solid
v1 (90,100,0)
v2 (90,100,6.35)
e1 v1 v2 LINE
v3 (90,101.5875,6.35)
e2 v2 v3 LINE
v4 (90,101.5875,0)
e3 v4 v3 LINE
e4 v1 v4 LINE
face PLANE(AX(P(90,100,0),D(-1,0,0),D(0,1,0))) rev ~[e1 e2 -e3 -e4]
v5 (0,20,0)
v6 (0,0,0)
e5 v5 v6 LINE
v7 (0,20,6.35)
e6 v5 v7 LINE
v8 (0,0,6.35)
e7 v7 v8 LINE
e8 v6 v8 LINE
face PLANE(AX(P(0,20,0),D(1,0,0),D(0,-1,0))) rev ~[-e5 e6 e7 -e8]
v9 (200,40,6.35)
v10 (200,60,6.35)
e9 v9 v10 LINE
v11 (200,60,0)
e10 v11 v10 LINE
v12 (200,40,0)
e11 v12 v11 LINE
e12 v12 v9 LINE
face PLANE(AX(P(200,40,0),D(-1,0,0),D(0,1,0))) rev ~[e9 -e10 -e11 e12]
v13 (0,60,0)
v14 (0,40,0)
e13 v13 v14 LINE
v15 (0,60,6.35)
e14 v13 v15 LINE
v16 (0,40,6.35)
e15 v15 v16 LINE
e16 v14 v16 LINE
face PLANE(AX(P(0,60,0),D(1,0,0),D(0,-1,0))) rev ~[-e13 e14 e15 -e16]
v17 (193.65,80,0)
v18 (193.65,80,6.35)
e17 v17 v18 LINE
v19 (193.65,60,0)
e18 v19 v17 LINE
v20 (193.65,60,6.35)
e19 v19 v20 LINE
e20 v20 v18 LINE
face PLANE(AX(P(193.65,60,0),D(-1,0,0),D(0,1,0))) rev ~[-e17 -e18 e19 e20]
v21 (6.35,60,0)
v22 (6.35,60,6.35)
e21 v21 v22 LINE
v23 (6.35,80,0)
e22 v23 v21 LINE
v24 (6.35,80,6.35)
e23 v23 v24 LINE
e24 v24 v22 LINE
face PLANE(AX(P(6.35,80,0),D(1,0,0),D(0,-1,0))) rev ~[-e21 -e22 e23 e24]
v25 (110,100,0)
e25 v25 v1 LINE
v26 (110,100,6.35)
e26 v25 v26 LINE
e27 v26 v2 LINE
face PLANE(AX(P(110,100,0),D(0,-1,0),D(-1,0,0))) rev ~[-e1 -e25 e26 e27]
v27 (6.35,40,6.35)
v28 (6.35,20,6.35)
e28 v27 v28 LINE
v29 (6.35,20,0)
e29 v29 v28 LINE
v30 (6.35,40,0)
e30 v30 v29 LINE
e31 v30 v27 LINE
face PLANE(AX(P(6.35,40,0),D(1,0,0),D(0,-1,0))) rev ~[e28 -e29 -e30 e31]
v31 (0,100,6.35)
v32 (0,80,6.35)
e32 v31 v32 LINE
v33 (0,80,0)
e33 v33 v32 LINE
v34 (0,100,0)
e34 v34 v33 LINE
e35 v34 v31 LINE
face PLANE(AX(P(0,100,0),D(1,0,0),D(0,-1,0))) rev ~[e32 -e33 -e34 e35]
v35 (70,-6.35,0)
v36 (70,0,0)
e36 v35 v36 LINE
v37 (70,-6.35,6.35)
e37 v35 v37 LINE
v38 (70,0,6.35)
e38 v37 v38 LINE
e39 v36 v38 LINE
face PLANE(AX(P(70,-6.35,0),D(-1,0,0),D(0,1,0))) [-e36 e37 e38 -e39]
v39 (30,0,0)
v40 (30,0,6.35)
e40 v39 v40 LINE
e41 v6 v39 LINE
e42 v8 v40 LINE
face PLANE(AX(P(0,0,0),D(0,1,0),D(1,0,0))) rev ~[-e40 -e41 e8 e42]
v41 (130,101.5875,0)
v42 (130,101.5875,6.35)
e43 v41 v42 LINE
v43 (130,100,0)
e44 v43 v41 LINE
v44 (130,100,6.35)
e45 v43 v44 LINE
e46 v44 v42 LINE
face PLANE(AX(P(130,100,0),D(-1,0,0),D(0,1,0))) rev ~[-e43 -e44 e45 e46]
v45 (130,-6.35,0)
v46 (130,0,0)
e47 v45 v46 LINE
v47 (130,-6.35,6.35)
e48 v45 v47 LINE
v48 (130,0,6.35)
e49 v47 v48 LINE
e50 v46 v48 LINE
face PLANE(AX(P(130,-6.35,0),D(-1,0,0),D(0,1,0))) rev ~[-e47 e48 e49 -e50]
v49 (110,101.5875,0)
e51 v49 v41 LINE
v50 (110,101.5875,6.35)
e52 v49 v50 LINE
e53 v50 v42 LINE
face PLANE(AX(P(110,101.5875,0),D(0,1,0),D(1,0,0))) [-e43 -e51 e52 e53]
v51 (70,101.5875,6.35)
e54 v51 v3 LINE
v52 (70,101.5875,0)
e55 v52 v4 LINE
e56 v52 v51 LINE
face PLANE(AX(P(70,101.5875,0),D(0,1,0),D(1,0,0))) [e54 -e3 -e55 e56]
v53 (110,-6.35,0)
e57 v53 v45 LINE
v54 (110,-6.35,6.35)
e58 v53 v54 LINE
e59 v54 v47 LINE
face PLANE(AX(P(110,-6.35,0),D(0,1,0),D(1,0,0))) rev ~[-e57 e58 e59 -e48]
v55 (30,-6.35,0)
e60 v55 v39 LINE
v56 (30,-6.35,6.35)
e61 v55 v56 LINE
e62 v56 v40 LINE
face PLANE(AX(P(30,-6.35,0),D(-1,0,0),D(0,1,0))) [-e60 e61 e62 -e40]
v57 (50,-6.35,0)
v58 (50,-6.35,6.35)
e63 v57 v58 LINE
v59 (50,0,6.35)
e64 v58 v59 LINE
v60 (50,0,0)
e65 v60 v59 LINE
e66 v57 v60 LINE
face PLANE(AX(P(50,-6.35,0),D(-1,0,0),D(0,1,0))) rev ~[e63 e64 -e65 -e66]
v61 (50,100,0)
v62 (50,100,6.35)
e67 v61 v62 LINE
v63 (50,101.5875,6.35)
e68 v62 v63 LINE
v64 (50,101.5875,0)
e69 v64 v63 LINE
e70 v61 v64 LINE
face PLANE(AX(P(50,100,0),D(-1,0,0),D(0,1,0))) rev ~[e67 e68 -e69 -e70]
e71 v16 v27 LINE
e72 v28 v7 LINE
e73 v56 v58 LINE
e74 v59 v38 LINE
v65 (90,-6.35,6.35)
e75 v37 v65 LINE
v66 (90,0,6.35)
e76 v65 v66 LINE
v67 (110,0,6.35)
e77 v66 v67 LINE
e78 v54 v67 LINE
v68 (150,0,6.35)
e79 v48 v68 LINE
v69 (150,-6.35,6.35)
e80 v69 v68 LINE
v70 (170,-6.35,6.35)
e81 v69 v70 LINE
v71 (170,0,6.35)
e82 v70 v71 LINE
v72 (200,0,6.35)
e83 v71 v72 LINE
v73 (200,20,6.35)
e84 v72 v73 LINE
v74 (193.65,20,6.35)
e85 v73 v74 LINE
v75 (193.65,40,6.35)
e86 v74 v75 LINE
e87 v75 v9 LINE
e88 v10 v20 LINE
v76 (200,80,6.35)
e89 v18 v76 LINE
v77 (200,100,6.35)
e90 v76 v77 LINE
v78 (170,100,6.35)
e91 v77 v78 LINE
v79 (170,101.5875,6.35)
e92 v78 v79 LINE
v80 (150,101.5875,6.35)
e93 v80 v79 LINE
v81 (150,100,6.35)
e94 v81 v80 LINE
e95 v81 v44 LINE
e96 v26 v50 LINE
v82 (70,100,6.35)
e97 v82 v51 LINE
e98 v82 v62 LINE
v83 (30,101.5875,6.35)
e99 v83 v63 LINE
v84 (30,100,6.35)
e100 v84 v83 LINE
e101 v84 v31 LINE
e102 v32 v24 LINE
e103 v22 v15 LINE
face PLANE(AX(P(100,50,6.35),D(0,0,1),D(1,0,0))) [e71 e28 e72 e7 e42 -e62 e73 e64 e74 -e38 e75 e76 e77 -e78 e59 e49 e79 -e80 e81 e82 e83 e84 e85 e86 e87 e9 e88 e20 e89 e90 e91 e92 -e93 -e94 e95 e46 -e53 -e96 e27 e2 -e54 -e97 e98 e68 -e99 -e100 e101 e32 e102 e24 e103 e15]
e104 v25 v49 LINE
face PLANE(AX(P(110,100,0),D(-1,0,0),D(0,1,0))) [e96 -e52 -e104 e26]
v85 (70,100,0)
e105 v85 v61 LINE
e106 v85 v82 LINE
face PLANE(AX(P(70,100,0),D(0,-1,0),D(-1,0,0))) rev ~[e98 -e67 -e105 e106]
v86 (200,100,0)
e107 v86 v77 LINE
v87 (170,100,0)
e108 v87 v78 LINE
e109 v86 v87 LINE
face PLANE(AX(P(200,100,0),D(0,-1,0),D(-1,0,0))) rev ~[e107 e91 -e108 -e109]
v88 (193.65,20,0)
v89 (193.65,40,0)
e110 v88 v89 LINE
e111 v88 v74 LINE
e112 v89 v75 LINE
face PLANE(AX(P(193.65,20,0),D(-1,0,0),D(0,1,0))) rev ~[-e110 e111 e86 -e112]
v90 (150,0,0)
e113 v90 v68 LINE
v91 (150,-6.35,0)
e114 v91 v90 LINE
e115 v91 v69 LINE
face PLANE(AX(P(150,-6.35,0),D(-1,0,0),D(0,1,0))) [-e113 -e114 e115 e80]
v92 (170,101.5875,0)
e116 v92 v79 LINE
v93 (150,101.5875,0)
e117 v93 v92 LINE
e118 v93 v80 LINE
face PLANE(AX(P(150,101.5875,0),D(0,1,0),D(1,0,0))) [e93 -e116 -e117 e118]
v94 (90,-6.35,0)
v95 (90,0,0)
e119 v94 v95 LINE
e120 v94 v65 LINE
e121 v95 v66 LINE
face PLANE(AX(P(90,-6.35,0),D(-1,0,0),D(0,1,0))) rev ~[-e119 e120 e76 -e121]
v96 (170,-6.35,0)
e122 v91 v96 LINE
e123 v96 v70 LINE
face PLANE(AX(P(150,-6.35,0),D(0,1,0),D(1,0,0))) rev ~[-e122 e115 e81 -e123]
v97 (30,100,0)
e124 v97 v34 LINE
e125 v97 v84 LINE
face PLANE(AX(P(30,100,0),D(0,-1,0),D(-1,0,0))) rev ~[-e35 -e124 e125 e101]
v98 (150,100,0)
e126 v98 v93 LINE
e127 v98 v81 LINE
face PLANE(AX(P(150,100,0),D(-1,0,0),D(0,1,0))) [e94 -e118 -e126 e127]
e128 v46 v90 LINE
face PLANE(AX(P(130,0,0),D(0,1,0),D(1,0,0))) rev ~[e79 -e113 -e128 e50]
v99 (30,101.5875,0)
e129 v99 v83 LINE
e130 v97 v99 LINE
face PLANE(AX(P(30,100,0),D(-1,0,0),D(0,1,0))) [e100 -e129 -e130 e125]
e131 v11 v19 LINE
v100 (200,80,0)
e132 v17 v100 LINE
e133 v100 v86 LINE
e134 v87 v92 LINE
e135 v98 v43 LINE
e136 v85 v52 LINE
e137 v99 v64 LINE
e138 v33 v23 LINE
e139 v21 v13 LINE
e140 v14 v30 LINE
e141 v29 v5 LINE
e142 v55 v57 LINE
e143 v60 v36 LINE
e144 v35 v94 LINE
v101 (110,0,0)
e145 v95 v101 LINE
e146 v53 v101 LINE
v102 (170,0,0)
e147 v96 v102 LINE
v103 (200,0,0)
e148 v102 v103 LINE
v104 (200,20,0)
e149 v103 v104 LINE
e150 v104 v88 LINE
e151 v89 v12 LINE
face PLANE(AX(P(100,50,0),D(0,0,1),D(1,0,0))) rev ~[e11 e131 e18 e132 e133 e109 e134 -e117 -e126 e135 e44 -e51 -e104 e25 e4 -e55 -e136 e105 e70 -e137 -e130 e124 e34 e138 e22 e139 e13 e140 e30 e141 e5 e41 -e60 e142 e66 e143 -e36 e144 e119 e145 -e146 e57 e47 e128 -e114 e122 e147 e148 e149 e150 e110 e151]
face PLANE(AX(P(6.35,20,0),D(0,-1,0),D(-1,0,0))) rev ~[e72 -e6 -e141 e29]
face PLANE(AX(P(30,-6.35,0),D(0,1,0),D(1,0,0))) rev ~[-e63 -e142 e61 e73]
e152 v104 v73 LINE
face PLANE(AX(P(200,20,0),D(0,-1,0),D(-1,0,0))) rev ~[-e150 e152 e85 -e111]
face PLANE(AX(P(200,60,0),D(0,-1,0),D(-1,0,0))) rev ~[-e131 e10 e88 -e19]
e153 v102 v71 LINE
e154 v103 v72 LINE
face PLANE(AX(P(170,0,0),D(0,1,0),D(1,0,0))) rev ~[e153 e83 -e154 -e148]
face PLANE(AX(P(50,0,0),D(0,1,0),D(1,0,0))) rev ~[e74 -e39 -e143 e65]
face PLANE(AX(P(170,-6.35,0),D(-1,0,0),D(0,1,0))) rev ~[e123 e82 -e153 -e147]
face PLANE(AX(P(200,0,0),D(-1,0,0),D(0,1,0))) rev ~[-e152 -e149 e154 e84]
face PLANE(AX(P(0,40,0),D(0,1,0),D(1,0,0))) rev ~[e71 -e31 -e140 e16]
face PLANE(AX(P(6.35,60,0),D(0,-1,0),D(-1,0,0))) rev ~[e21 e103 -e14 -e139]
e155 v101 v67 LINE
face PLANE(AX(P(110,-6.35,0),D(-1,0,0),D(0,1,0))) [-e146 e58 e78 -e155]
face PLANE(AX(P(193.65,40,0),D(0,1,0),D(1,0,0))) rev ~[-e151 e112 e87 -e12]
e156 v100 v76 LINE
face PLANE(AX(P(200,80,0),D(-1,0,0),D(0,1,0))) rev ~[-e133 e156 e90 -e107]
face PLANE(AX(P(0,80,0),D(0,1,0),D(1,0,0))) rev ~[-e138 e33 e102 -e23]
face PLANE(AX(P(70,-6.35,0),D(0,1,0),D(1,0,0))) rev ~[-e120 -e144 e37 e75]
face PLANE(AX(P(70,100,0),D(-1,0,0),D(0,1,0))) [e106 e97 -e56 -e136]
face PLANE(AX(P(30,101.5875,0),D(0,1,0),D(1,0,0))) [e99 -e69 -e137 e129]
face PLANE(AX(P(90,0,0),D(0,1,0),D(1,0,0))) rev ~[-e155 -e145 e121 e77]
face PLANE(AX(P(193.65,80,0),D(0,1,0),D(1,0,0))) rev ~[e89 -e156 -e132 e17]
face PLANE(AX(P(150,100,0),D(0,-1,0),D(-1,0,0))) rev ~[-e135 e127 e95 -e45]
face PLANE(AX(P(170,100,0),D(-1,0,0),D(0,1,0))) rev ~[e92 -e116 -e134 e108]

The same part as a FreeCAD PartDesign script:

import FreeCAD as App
import Part
import Sketcher


def add_polygon(sketch, points):
    """Adds a closed chain of lines whose ends are joined by coincident constraints."""
    first, n = sketch.GeometryCount, len(points)
    for a, b in zip(points, points[1:] + points[:1]):
        sketch.addGeometry(Part.LineSegment(App.Vector(*a, 0), App.Vector(*b, 0)), False)
    for i in range(n):
        sketch.addConstraint(Sketcher.Constraint("Coincident", first + i, 2, first + (i + 1) % n, 1))

doc = App.newDocument("Part")
body = doc.addObject("PartDesign::Body", "Body")

# Sketch on XY plane
sketch1 = body.newObject("Sketcher::SketchObject", "Sketch")
sketch1.AttachmentSupport = (doc.getObject("XY_Plane"), [""])
sketch1.MapMode = "FlatFace"
add_polygon(sketch1, [(0, 20), (0, 0), (30, 0), (30, -6.35), (50, -6.35), (50, 0), (70, 0), (70, -6.35), (90, -6.35), (90, 0), (110, 0), (110, -6.35), (130, -6.35), (130, 0), (150, 0), (150, -6.35), (170, -6.35), (170, 0), (200, 0), (200, 20), (193.65, 20), (193.65, 40), (200, 40), (200, 60), (193.65, 60), (193.65, 80), (200, 80), (200, 100), (170, 100), (170, 101.5875), (150, 101.5875), (150, 100), (130, 100), (130, 101.5875), (110, 101.5875), (110, 100), (90, 100), (90, 101.5875), (70, 101.5875), (70, 100), (50, 100), (50, 101.5875), (30, 101.5875), (30, 100), (0, 100), (0, 80), (6.35, 80), (6.35, 60), (0, 60), (0, 40), (6.35, 40), (6.35, 20)])  # lines 0-51
sketch1.addConstraint([
    Sketcher.Constraint("Vertical", 0),
    Sketcher.Constraint("Horizontal", 1),
    Sketcher.Constraint("Vertical", 2),
    Sketcher.Constraint("Horizontal", 3),
    Sketcher.Constraint("Vertical", 4),
    Sketcher.Constraint("Horizontal", 5),
    Sketcher.Constraint("Vertical", 6),
    Sketcher.Constraint("Horizontal", 7),
    Sketcher.Constraint("Vertical", 8),
    Sketcher.Constraint("Horizontal", 9),
    Sketcher.Constraint("Vertical", 10),
    Sketcher.Constraint("Horizontal", 11),
    Sketcher.Constraint("Vertical", 12),
    Sketcher.Constraint("Horizontal", 13),
    Sketcher.Constraint("Vertical", 14),
    Sketcher.Constraint("Horizontal", 15),
    Sketcher.Constraint("Vertical", 16),
    Sketcher.Constraint("Horizontal", 17),
    Sketcher.Constraint("Vertical", 18),
    Sketcher.Constraint("Horizontal", 19),
    Sketcher.Constraint("Vertical", 20),
    Sketcher.Constraint("Horizontal", 21),
    Sketcher.Constraint("Vertical", 22),
    Sketcher.Constraint("Horizontal", 23),
    Sketcher.Constraint("Vertical", 24),
    Sketcher.Constraint("Horizontal", 25),
    Sketcher.Constraint("Vertical", 26),
    Sketcher.Constraint("Horizontal", 27),
    Sketcher.Constraint("Vertical", 28),
    Sketcher.Constraint("Horizontal", 29),
    Sketcher.Constraint("Vertical", 30),
    Sketcher.Constraint("Horizontal", 31),
    Sketcher.Constraint("Vertical", 32),
    Sketcher.Constraint("Horizontal", 33),
    Sketcher.Constraint("Vertical", 34),
    Sketcher.Constraint("Horizontal", 35),
    Sketcher.Constraint("Vertical", 36),
    Sketcher.Constraint("Horizontal", 37),
    Sketcher.Constraint("Vertical", 38),
    Sketcher.Constraint("Horizontal", 39),
    Sketcher.Constraint("Vertical", 40),
    Sketcher.Constraint("Horizontal", 41),
    Sketcher.Constraint("Vertical", 42),
    Sketcher.Constraint("Horizontal", 43),
    Sketcher.Constraint("Vertical", 44),
    Sketcher.Constraint("Horizontal", 45),
    Sketcher.Constraint("Vertical", 46),
    Sketcher.Constraint("Horizontal", 47),
    Sketcher.Constraint("Vertical", 48),
    Sketcher.Constraint("Horizontal", 49),
    Sketcher.Constraint("Vertical", 50),
    Sketcher.Constraint("Horizontal", 51),
    Sketcher.Constraint("Coincident", 0, 2, -1, 1),
    Sketcher.Constraint("PointOnObject", 4, 2, -1),
    Sketcher.Constraint("PointOnObject", 8, 2, -1),
    Sketcher.Constraint("PointOnObject", 12, 2, -1),
    Sketcher.Constraint("PointOnObject", 16, 2, -1),
    Sketcher.Constraint("PointOnObject", 43, 2, -2),
    Sketcher.Constraint("PointOnObject", 47, 2, -2),
    Sketcher.Constraint("Horizontal", 3, 2, 6, 2),
    Sketcher.Constraint("Horizontal", 7, 2, 10, 2),
    Sketcher.Constraint("Horizontal", 11, 2, 14, 2),
    Sketcher.Constraint("Horizontal", 27, 2, 30, 2),
    Sketcher.Constraint("Horizontal", 29, 2, 32, 2),
    Sketcher.Constraint("Horizontal", 31, 2, 34, 2),
    Sketcher.Constraint("Horizontal", 33, 2, 36, 2),
    Sketcher.Constraint("Horizontal", 35, 2, 38, 2),
    Sketcher.Constraint("Horizontal", 37, 2, 40, 2),
    Sketcher.Constraint("Horizontal", 39, 2, 42, 2),
    Sketcher.Constraint("Horizontal", 25, 2, 44, 2),
    Sketcher.Constraint("Horizontal", 23, 2, 46, 2),
    Sketcher.Constraint("Horizontal", 21, 2, 48, 2),
    Sketcher.Constraint("Horizontal", 19, 2, 50, 2),
    Sketcher.Constraint("Vertical", 18, 2, 21, 2),
    Sketcher.Constraint("Vertical", 20, 2, 23, 2),
    Sketcher.Constraint("Vertical", 22, 2, 25, 2),
    Sketcher.Constraint("Vertical", 16, 2, 27, 2),
    Sketcher.Constraint("Vertical", 14, 2, 29, 2),
    Sketcher.Constraint("Vertical", 12, 2, 31, 2),
    Sketcher.Constraint("Vertical", 10, 2, 33, 2),
    Sketcher.Constraint("Vertical", 8, 2, 35, 2),
    Sketcher.Constraint("Vertical", 6, 2, 37, 2),
    Sketcher.Constraint("Vertical", 4, 2, 39, 2),
    Sketcher.Constraint("Vertical", 2, 2, 41, 2),
    Sketcher.Constraint("Vertical", 46, 2, 49, 2),
    Sketcher.Constraint("Equal", 3, 5),
    Sketcher.Constraint("Equal", 5, 7),
    Sketcher.Constraint("Equal", 7, 9),
    Sketcher.Constraint("Equal", 9, 11),
    Sketcher.Constraint("Equal", 11, 13),
    Sketcher.Constraint("Equal", 13, 15),
    Sketcher.Constraint("Equal", 1, 17),
    Sketcher.Constraint("Equal", 25, 45),
    Sketcher.Constraint("Equal", 41, 0),
    Sketcher.Constraint("Equal", 51, 2),
    Sketcher.Constraint("Equal", 18, 20),
    Sketcher.Constraint("Equal", 20, 22),
    Sketcher.Constraint("Equal", 22, 24),
    Sketcher.Constraint("Equal", 24, 26),
    Sketcher.Constraint("DistanceX", 1, 1, 1, 2, 30.0),
    Sketcher.Constraint("DistanceX", 3, 1, 3, 2, 20.0),
    Sketcher.Constraint("DistanceX", 19, 2, 19, 1, 6.35),
    Sketcher.Constraint("DistanceY", 28, 1, 28, 2, 1.5875),
])
pad1 = body.newObject("PartDesign::Pad", "Pad")
pad1.Profile = sketch1
pad1.Length = 6.35

doc.recompute()
